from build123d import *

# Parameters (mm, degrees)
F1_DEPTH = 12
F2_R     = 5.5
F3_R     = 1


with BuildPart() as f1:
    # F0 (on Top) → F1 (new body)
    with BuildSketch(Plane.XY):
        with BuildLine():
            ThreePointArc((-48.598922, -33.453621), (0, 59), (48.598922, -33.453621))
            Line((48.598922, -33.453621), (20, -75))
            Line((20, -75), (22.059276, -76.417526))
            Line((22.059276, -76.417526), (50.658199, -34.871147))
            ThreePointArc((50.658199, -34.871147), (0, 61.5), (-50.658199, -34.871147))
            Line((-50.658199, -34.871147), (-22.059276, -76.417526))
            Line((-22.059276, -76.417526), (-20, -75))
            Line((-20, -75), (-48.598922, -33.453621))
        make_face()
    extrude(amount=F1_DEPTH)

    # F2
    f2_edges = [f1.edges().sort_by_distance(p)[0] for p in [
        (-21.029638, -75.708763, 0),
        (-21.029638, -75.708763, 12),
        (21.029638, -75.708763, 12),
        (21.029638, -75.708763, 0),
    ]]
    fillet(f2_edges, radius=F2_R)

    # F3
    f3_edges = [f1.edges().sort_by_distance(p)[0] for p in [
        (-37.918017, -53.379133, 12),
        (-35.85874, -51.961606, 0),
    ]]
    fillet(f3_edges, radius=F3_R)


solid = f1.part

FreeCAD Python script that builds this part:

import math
import FreeCAD as App
import Part
import Sketcher
from FreeCAD import Vector
Q = App.Units.Quantity


def edges_at(feature, points):
    """Names of the edges that pass closest to the given points."""
    edges = feature.Shape.Edges
    near = lambda p: min(range(len(edges)), key=lambda i: edges[i].distToShape(Part.Vertex(*p))[0])
    return sorted({f"Edge{near(p) + 1}" for p in points})

doc = App.newDocument("Part")
body = doc.addObject("PartDesign::Body", "Body")

sketch1 = body.newObject("Sketcher::SketchObject", "Sketch")
sketch1.AttachmentSupport = (doc.getObject("XY_Plane"), [""])
sketch1.MapMode = "FlatFace"
sketch1.addGeometry(Part.ArcOfCircle(Part.Circle(Vector(0, 0, 0), Vector(0, 0, 1), 59), math.radians(-34.542023), math.radians(214.542023)), False)
sketch1.addGeometry(Part.LineSegment(Vector(48.598922, -33.453621, 0), Vector(20, -75, 0)), False)
sketch1.addGeometry(Part.LineSegment(Vector(20, -75, 0), Vector(22.059276, -76.417526, 0)), False)
sketch1.addGeometry(Part.LineSegment(Vector(22.059276, -76.417526, 0), Vector(50.658199, -34.871147, 0)), False)
sketch1.addGeometry(Part.ArcOfCircle(Part.Circle(Vector(0, 0, 0), Vector(0, 0, 1), 61.5), math.radians(-34.542022), math.radians(214.542022)), False)
sketch1.addGeometry(Part.LineSegment(Vector(-50.658199, -34.871147, 0), Vector(-22.059276, -76.417526, 0)), False)
sketch1.addGeometry(Part.LineSegment(Vector(-22.059276, -76.417526, 0), Vector(-20, -75, 0)), False)
sketch1.addGeometry(Part.LineSegment(Vector(-20, -75, 0), Vector(-48.598922, -33.453621, 0)), False)
sketch1.addConstraint(Sketcher.Constraint("Tangent", 0, 1, 1, 1))
sketch1.addConstraint(Sketcher.Constraint("Coincident", 1, 2, 2, 1))
sketch1.addConstraint(Sketcher.Constraint("Coincident", 2, 2, 3, 1))
sketch1.addConstraint(Sketcher.Constraint("Tangent", 3, 2, 4, 1))
sketch1.addConstraint(Sketcher.Constraint("Tangent", 4, 2, 5, 1))
sketch1.addConstraint(Sketcher.Constraint("Coincident", 5, 2, 6, 1))
sketch1.addConstraint(Sketcher.Constraint("Coincident", 6, 2, 7, 1))
sketch1.addConstraint(Sketcher.Constraint("Tangent", 7, 2, 0, 2))
sketch1.addConstraint(Sketcher.Constraint("Coincident", 0, 3, -1, 1))
sketch1.addConstraint(Sketcher.Constraint("Coincident", 4, 3, -1, 1))
sketch1.addConstraint(Sketcher.Constraint("Symmetric", 2, 2, 5, 2, -2))
sketch1.addConstraint(Sketcher.Constraint("Symmetric", 1, 2, 6, 2, -2))
sketch1.addConstraint(Sketcher.Constraint("Perpendicular", 1, 2))
sketch1.addConstraint(Sketcher.Constraint("Perpendicular", 2, 3))
sketch1.addConstraint(Sketcher.Constraint("Radius", 0, Q("59 mm")))
sketch1.addConstraint(Sketcher.Constraint("Radius", 4, Q("61.5 mm")))
sketch1.addConstraint(Sketcher.Constraint("DistanceX", -1, 1, 1, 2, Q("20 mm")))
sketch1.addConstraint(Sketcher.Constraint("DistanceY", 1, 2, -1, 1, Q("75 mm")))
pad1 = body.newObject("PartDesign::Pad", "Pad")
pad1.Profile = sketch1
pad1.Length = 12
doc.recompute()

fillet = body.newObject("PartDesign::Fillet", "Fillet")
fillet.Base = (pad1, edges_at(pad1, [
    (-21.03, -75.709, 0),
    (-21.03, -75.709, 12),
    (21.03, -75.709, 12),
    (21.03, -75.709, 0),
]))
fillet.Radius = 5.5
doc.recompute()

fillet2 = body.newObject("PartDesign::Fillet", "Fillet001")
fillet2.Base = (fillet, edges_at(fillet, [(-37.918, -53.379, 12), (-35.859, -51.962, 0)]))
fillet2.Radius = 1

doc.recompute()
